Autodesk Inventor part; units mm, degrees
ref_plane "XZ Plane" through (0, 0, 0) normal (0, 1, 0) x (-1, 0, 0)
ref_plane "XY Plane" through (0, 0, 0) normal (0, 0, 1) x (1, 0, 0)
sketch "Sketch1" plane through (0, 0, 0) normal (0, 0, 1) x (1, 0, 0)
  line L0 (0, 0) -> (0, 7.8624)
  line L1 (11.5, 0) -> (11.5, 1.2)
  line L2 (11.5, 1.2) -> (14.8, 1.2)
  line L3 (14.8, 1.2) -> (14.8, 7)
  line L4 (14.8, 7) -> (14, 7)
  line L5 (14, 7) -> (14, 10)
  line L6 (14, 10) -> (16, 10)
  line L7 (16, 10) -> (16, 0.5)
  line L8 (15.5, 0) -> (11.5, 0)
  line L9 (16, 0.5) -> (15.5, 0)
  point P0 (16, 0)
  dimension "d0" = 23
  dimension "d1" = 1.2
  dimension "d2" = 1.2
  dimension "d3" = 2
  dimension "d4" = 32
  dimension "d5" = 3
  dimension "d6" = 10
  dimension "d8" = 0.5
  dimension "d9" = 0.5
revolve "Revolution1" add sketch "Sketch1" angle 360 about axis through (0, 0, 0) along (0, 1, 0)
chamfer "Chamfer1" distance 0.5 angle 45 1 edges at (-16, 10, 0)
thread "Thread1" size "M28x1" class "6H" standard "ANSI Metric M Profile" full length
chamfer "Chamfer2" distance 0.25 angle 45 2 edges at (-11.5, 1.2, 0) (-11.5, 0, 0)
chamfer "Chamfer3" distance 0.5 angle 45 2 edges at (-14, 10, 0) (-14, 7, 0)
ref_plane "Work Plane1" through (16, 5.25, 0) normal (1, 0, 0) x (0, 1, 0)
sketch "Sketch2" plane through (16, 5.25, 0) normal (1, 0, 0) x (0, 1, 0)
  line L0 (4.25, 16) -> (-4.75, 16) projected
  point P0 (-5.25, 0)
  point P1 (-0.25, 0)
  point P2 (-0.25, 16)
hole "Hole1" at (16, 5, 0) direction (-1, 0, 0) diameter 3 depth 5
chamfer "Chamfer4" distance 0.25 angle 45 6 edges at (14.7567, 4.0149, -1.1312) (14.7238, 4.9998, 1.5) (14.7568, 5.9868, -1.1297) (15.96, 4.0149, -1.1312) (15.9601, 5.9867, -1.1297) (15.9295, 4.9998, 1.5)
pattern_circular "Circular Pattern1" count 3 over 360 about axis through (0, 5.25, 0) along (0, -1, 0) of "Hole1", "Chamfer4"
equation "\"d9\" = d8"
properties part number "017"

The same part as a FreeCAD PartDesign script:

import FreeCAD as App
import Part
import Sketcher

V = App.Vector


def edges_at(feature, points):
    """Names of the edges that pass closest to the given points."""
    edges = feature.Shape.Edges
    near = lambda p: min(range(len(edges)), key=lambda i: edges[i].distToShape(Part.Vertex(*p))[0])
    return sorted({f"Edge{near(p) + 1}" for p in points})

doc = App.newDocument("Part")
body = doc.addObject("PartDesign::Body", "Body")

# Sketch on XY plane
sketch1 = body.newObject("Sketcher::SketchObject", "Sketch")
sketch1.AttachmentSupport = (doc.getObject("XY_Plane"), [""])
sketch1.MapMode = "FlatFace"
sketch1.addGeometry([
    Part.LineSegment(V(11.5, 1.2, 0), V(11.5, 0, 0)),  # 0
    Part.LineSegment(V(11.5, 0, 0), V(15.5, 0, 0)),  # 1
    Part.LineSegment(V(15.5, 0, 0), V(16, 0.5, 0)),  # 2
    Part.LineSegment(V(16, 0.5, 0), V(16, 10, 0)),  # 3
    Part.LineSegment(V(16, 10, 0), V(14, 10, 0)),  # 4
    Part.LineSegment(V(14, 10, 0), V(14, 7, 0)),  # 5
    Part.LineSegment(V(14, 7, 0), V(14.8, 7, 0)),  # 6
    Part.LineSegment(V(14.8, 7, 0), V(14.8, 1.2, 0)),  # 7
    Part.LineSegment(V(14.8, 1.2, 0), V(11.5, 1.2, 0)),  # 8
], False)
sketch1.addConstraint([
    Sketcher.Constraint("Coincident", 0, 2, 1, 1),
    Sketcher.Constraint("Coincident", 1, 2, 2, 1),
    Sketcher.Constraint("Coincident", 2, 2, 3, 1),
    Sketcher.Constraint("Coincident", 3, 2, 4, 1),
    Sketcher.Constraint("Coincident", 4, 2, 5, 1),
    Sketcher.Constraint("Coincident", 5, 2, 6, 1),
    Sketcher.Constraint("Coincident", 6, 2, 7, 1),
    Sketcher.Constraint("Coincident", 7, 2, 8, 1),
    Sketcher.Constraint("Coincident", 8, 2, 0, 1),
    Sketcher.Constraint("Vertical", 0),
    Sketcher.Constraint("Horizontal", 1),
    Sketcher.Constraint("Vertical", 3),
    Sketcher.Constraint("Horizontal", 4),
    Sketcher.Constraint("Vertical", 5),
    Sketcher.Constraint("Horizontal", 6),
    Sketcher.Constraint("Vertical", 7),
    Sketcher.Constraint("Horizontal", 8),
    Sketcher.Constraint("PointOnObject", 0, 2, -1),
    Sketcher.Constraint("DistanceX", 4, 2, 4, 1, 2.0),
    Sketcher.Constraint("DistanceY", 5, 2, 5, 1, 3.0),
    Sketcher.Constraint("DistanceY", 0, 2, 0, 1, 1.2),
    Sketcher.Constraint("DistanceY", -1, 1, 3, 2, 10.0),
    Sketcher.Constraint("DistanceY", -1, 1, 2, 2, 0.5),
    Sketcher.Constraint("DistanceX", 1, 2, 2, 2, 0.5),
    Sketcher.Constraint("DistanceX", 6, 2, 3, 2, 1.2),
    Sketcher.Constraint("DistanceX", 1, 1, 1, 2, 4.0),
    Sketcher.Constraint("DistanceX", -1, 1, 2, 2, 16.0),
])
revolution = body.newObject("PartDesign::Revolution", "Revolution")
revolution.Profile = sketch1
revolution.ReferenceAxis = (sketch1, ["V_Axis"])
revolution.Angle = 360
doc.recompute()

chamfer = body.newObject("PartDesign::Chamfer", "Chamfer")
chamfer.Base = (revolution, edges_at(revolution, [(-16, 10, 0)]))
chamfer.Size = 0.5
doc.recompute()

chamfer2 = body.newObject("PartDesign::Chamfer", "Chamfer001")
chamfer2.Base = (chamfer, edges_at(chamfer, [(-11.5, 1.2, 0), (-11.5, 0, 0)]))
chamfer2.Size = 0.25
doc.recompute()

chamfer3 = body.newObject("PartDesign::Chamfer", "Chamfer002")
chamfer3.Base = (chamfer2, edges_at(chamfer2, [(-14, 10, 0), (-14, 7, 0)]))
chamfer3.Size = 0.5

# Sketch on YZ plane
sketch2 = body.newObject("Sketcher::SketchObject", "Sketch001")
sketch2.AttachmentSupport = (doc.getObject("YZ_Plane"), [""])
sketch2.MapMode = "FlatFace"
sketch2.AttachmentOffset = App.Placement(V(0, 0, 16), App.Rotation())
sketch2.addGeometry(Part.Circle(V(5, 0, 0), V(0, 0, 1), 1.5), False)
sketch2.addConstraint([
    Sketcher.Constraint("PointOnObject", 0, 3, -1),
    Sketcher.Constraint("Diameter", 0, 3.0),
    Sketcher.Constraint("DistanceX", -1, 1, 0, 3, 5.0),
])
doc.recompute()
hole = body.newObject("PartDesign::Hole", "Hole")
hole.Profile = sketch2
hole.ThreadType = "None"
hole.Diameter = 3
hole.DepthType = "Dimension"
hole.Depth = 5
hole.DrillPoint = "Flat"
doc.recompute()

chamfer4 = body.newObject("PartDesign::Chamfer", "Chamfer003")
chamfer4.Base = (hole, edges_at(hole, [
    (14.757, 4.015, -1.131),
    (14.724, 5, 1.5),
    (14.757, 5.987, -1.13),
    (15.96, 4.015, -1.131),
    (15.96, 5.987, -1.13),
    (15.93, 5, 1.5),
]))
chamfer4.Size = 0.25
doc.recompute()

polarpattern = body.newObject("PartDesign::PolarPattern", "PolarPattern")
polarpattern.Originals = [hole, chamfer4]
polarpattern.Axis = (doc.getObject("Y_Axis"), [""])
polarpattern.Angle = 360
polarpattern.Occurrences = 3
body.Tip = polarpattern

doc.recompute()
